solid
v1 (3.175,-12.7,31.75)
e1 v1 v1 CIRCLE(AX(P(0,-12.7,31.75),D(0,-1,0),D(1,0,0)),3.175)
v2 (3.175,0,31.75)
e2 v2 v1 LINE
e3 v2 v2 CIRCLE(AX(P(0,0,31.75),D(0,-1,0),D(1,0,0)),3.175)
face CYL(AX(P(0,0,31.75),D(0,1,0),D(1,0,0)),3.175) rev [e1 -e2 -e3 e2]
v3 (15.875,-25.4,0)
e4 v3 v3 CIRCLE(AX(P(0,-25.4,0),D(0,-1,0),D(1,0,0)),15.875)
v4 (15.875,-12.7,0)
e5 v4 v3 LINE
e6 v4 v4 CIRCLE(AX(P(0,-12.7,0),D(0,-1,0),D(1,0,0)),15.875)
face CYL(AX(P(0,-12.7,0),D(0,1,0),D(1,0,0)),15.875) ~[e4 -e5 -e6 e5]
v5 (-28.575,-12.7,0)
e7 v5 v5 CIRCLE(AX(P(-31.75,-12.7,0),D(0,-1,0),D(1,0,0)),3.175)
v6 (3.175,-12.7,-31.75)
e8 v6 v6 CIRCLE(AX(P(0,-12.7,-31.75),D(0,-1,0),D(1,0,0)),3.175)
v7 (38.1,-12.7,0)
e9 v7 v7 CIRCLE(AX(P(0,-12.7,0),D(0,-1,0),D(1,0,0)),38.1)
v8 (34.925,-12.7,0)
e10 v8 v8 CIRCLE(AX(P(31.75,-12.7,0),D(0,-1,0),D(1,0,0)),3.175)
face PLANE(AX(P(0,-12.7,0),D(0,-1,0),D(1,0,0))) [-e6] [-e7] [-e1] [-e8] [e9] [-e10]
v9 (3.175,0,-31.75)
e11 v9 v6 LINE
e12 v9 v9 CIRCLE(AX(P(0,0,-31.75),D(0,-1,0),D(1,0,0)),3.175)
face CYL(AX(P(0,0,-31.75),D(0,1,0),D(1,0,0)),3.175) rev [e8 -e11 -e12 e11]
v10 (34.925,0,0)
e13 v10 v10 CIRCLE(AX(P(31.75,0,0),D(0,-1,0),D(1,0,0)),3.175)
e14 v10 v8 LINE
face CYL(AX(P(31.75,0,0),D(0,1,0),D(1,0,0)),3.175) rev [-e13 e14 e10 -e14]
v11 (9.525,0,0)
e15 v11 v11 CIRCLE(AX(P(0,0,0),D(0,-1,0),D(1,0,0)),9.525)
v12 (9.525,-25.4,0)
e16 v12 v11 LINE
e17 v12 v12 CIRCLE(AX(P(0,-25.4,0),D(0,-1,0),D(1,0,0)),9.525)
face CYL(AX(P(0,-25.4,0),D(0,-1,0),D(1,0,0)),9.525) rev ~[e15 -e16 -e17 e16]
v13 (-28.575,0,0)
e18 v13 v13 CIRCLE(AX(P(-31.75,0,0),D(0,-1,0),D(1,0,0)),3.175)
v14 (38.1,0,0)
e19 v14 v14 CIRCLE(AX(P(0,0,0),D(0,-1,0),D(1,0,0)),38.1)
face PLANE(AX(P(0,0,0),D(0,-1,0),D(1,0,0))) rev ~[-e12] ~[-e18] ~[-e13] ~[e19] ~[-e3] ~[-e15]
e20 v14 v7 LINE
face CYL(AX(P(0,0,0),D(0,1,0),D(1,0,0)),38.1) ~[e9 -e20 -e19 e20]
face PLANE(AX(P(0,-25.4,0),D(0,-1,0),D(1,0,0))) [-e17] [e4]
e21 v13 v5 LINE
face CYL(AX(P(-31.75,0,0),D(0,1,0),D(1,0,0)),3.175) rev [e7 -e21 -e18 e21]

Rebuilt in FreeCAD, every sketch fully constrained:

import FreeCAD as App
import Part
import Sketcher
Q = App.Units.Quantity

doc = App.newDocument("Part")
params = doc.addObject("Spreadsheet::Sheet", "Params")
for row, (alias, value) in enumerate([
    ("sketch1_diameter", "3 in"),
    ("sketch1_diameter2", "0.25 in"),
    ("pad1_length", "0.5 in"),
    ("sketch2_diameter", "1.25 in"),
    ("pad2_length", "0.5 in"),
    ("sketch3_diameter", "0.75 in"),
], start=1):
    params.set(f"A{row}", alias)
    params.set(f"B{row}", "=" + value)
    params.setAlias(f"B{row}", alias)

body = doc.addObject("PartDesign::Body", "Body")

sketch1 = body.newObject("Sketcher::SketchObject", "Sketch")
sketch1.AttachmentSupport = (doc.getObject("XZ_Plane"), [""])
sketch1.MapMode = "FlatFace"
sketch1.addGeometry([
    Part.Circle(App.Vector(0, 0, 0), App.Vector(0, 0, 1), 38.1),
    Part.Circle(App.Vector(0, -31.8, 0), App.Vector(0, 0, 1), 3.2),
    Part.Circle(App.Vector(-31.8, 0, 0), App.Vector(0, 0, 1), 3.2),
    Part.Circle(App.Vector(31.8, 0, 0), App.Vector(0, 0, 1), 3.2),
    Part.Circle(App.Vector(0, 31.8, 0), App.Vector(0, 0, 1), 3.2),
], False)
sketch1.addConstraint([
    Sketcher.Constraint("Coincident", 0, 3, -1, 1),
    Sketcher.Constraint("Equal", 1, 2),
    Sketcher.Constraint("Equal", 2, 3),
    Sketcher.Constraint("Equal", 3, 4),
    Sketcher.Constraint("Symmetric", 2, 3, 3, 3, -1, 1),
    Sketcher.Constraint("Symmetric", 1, 3, 4, 3, -1, 1),
    Sketcher.Constraint("PointOnObject", 1, 3, -2),
    Sketcher.Constraint("PointOnObject", 2, 3, -1),
    Sketcher.Constraint("Diameter", 0, Q("3 in")),
    Sketcher.Constraint("Diameter", 1, Q("0.25 in")),
    Sketcher.Constraint("DistanceX", 2, 3, 3, 3, Q("2.5 in")),
    Sketcher.Constraint("DistanceY", 1, 3, 4, 3, Q("2.5 in")),
])
sketch1.setExpression("Constraints[8]", "Params.sketch1_diameter")
sketch1.setExpression("Constraints[9]", "Params.sketch1_diameter2")
pad1 = body.newObject("PartDesign::Pad", "Pad")
pad1.Profile = sketch1
pad1.setExpression("Length", "Params.pad1_length")

sketch2 = body.newObject("Sketcher::SketchObject", "Sketch001")
sketch2.AttachmentSupport = (doc.getObject("XZ_Plane"), [""])
sketch2.MapMode = "FlatFace"
sketch2.AttachmentOffset = App.Placement(App.Vector(0, 0, 0.5 * 25.4), App.Rotation())
sketch2.addGeometry(Part.Circle(App.Vector(0, 0, 0), App.Vector(0, 0, 1), 16), False)
sketch2.addConstraint([
    Sketcher.Constraint("Coincident", 0, 3, -1, 1),
    Sketcher.Constraint("Diameter", 0, Q("1.25 in")),
])
sketch2.setExpression("Constraints[1]", "Params.sketch2_diameter")
pad2 = body.newObject("PartDesign::Pad", "Pad001")
pad2.Profile = sketch2
pad2.setExpression("Length", "Params.pad2_length")

sketch3 = body.newObject("Sketcher::SketchObject", "Sketch002")
sketch3.AttachmentSupport = (doc.getObject("XZ_Plane"), [""])
sketch3.MapMode = "FlatFace"
sketch3.AttachmentOffset = App.Placement(App.Vector(0, 0, 1 * 25.4), App.Rotation())
sketch3.addGeometry(Part.Circle(App.Vector(0, 0, 0), App.Vector(0, 0, 1), 10), False)
sketch3.addConstraint([
    Sketcher.Constraint("Coincident", 0, 3, -1, 1),
    Sketcher.Constraint("Diameter", 0, Q("0.75 in")),
])
sketch3.setExpression("Constraints[1]", "Params.sketch3_diameter")
pocket1 = body.newObject("PartDesign::Pocket", "Pocket")
pocket1.Profile = sketch3
pocket1.Type = "ThroughAll"

doc.recompute()
